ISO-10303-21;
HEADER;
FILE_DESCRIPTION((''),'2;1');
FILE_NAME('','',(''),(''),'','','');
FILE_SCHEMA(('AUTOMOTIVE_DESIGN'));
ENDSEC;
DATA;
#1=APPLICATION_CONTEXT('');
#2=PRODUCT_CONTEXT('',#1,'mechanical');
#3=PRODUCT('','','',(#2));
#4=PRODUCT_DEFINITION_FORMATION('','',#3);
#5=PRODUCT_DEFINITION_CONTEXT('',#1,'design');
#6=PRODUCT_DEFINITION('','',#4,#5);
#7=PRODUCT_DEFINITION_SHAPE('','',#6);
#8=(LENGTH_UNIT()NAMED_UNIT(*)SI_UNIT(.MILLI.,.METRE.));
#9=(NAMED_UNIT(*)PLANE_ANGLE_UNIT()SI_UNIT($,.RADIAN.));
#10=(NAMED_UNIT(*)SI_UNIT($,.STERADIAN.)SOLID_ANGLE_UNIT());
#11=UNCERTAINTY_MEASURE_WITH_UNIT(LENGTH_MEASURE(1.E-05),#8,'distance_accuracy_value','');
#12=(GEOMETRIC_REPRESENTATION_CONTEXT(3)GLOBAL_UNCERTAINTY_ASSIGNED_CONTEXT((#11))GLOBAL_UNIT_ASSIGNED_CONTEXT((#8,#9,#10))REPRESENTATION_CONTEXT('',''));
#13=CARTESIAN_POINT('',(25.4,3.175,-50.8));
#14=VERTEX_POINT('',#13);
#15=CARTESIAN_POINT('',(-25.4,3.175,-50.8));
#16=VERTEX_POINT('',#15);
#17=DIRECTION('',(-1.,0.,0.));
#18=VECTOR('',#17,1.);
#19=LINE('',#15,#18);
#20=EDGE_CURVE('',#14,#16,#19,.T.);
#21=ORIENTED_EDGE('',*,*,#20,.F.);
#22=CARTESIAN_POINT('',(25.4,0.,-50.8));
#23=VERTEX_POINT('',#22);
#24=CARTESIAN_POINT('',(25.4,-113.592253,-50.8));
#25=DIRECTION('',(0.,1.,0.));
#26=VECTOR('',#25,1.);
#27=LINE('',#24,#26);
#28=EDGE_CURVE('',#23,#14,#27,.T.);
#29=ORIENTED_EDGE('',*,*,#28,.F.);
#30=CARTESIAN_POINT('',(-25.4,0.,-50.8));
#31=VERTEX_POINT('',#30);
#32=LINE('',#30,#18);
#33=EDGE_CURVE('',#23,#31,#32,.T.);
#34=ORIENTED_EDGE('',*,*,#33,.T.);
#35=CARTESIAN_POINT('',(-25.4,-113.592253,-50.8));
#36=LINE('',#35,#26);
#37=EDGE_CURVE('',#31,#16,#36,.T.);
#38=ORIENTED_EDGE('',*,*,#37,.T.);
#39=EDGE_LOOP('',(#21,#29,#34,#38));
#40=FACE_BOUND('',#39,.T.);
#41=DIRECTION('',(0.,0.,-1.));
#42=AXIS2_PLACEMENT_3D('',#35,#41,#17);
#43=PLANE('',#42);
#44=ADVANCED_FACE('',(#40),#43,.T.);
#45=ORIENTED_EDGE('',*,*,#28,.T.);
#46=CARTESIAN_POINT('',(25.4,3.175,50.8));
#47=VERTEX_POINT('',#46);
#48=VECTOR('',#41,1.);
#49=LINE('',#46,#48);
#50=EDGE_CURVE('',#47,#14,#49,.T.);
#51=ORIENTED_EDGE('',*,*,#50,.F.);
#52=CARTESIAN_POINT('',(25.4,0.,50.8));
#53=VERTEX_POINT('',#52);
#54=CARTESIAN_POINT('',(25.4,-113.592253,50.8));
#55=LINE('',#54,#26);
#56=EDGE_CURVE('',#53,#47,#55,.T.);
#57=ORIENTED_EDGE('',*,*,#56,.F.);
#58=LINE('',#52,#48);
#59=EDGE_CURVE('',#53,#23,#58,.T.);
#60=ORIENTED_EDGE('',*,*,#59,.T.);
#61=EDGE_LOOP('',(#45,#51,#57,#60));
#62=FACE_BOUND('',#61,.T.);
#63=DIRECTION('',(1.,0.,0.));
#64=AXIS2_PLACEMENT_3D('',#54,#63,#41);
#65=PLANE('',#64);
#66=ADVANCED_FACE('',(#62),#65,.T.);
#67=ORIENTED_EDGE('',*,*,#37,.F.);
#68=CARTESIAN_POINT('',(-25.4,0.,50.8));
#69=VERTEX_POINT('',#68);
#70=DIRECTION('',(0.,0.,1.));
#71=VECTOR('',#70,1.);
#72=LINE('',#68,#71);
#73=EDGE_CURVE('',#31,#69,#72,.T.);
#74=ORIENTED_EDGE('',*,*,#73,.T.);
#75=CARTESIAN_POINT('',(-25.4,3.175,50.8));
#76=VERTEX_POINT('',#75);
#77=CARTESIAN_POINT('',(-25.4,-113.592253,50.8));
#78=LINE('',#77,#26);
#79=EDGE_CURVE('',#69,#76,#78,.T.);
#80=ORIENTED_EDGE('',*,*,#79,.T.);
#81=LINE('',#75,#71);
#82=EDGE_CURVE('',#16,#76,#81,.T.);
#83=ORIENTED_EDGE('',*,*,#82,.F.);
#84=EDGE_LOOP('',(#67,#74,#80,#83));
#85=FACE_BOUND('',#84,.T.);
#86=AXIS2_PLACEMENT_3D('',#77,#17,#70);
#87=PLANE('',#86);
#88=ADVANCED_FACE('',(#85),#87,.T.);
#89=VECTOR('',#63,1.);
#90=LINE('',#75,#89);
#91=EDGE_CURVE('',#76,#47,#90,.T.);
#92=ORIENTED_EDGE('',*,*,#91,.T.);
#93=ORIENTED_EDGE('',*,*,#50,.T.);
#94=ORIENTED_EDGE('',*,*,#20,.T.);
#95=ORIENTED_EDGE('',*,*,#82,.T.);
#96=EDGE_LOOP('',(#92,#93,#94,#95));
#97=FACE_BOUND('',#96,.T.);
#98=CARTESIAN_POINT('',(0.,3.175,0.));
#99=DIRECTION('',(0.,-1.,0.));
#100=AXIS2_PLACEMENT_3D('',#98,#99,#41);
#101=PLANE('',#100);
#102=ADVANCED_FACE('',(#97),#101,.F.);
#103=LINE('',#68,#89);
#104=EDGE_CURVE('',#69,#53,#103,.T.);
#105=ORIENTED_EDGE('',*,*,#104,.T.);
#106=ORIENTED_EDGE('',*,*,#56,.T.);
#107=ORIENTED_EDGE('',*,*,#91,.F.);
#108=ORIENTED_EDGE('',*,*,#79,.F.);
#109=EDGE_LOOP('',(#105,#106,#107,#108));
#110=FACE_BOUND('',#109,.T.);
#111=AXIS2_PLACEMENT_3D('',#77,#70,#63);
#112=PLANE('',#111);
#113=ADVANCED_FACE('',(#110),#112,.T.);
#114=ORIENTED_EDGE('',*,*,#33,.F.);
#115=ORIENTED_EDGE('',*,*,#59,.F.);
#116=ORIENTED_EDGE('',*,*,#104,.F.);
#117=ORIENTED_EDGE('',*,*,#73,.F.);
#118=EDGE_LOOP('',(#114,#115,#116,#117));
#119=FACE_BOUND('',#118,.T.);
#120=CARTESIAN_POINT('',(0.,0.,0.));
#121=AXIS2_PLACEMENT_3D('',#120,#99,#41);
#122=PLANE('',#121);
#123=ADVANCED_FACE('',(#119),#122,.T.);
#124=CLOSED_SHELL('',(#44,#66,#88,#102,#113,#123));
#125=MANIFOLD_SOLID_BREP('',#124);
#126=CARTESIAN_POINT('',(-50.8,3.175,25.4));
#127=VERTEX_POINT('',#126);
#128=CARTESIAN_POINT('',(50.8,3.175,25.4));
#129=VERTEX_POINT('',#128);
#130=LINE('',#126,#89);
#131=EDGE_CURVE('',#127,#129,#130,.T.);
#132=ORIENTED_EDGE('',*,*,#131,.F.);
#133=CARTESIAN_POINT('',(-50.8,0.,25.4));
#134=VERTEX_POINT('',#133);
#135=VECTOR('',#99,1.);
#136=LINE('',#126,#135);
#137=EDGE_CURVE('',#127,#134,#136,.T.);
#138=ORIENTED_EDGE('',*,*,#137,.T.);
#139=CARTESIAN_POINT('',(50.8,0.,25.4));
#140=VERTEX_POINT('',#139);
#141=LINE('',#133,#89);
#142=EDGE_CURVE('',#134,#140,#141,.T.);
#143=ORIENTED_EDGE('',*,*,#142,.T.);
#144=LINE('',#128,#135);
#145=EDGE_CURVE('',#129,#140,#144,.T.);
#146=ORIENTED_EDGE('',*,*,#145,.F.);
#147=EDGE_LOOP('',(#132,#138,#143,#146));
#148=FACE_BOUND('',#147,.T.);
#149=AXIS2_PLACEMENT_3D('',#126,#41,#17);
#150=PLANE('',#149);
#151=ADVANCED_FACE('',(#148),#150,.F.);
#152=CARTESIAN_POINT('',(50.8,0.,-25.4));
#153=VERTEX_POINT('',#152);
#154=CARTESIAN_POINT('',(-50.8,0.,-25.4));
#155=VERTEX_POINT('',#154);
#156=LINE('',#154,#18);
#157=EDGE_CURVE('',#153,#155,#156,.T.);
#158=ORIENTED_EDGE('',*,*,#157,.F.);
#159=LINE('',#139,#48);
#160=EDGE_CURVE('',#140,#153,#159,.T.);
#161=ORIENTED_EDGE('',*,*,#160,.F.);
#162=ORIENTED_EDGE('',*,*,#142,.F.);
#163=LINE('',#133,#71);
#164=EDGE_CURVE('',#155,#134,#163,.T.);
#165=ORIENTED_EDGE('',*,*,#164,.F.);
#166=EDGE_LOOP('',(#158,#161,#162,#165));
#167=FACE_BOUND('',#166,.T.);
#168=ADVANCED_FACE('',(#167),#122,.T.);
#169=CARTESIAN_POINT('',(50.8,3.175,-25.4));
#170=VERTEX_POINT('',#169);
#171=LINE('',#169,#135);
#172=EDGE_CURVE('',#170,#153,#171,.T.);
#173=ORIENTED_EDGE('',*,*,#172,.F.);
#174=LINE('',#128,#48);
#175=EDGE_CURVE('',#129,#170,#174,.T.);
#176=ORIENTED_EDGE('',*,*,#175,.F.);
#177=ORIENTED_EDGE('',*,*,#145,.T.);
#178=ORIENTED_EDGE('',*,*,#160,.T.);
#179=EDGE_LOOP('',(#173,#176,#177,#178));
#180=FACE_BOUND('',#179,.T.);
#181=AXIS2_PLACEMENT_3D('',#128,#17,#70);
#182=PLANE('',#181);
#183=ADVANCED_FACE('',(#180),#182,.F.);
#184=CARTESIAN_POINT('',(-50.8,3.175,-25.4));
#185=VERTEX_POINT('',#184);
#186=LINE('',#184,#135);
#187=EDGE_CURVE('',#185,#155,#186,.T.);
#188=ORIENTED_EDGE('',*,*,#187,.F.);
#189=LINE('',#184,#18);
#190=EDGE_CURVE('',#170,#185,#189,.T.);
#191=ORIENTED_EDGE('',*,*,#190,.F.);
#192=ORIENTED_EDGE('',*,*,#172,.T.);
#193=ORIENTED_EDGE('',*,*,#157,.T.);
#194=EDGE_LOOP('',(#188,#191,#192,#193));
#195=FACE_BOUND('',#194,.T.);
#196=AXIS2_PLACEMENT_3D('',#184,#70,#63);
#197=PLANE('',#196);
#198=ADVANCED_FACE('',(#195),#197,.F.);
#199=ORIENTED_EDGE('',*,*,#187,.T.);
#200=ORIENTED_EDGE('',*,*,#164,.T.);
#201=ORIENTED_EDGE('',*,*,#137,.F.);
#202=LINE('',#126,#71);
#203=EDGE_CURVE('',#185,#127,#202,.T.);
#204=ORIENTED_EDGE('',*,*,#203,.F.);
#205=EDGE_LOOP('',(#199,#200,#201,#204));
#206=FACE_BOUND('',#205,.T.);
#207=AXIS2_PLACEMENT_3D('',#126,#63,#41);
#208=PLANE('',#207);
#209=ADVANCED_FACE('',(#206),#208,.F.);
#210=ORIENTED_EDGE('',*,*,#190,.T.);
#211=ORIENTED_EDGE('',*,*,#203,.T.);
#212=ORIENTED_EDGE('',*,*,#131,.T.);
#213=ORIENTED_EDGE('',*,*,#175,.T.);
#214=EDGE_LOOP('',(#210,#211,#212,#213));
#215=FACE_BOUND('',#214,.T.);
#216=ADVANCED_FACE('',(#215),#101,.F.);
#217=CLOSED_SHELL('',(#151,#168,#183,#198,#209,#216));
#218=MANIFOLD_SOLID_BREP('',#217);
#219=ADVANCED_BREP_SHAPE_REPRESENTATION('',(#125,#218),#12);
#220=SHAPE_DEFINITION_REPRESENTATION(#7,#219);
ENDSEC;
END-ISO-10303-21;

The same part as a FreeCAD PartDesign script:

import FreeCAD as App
import Part
import Sketcher
Q = App.Units.Quantity

doc = App.newDocument("Part")
params = doc.addObject("Spreadsheet::Sheet", "Params")
for row, (alias, value) in enumerate([
    ("sketch1_width", "4 in"),
    ("sketch1_height", "2 in"),
    ("pad1_length", "0.125 in"),
    ("sketch2_width", "2 in"),
    ("sketch2_height", "4 in"),
    ("pad2_length", "0.125 in"),
], start=1):
    params.set(f"A{row}", alias)
    params.set(f"B{row}", "=" + value)
    params.setAlias(f"B{row}", alias)

body = doc.addObject("PartDesign::Body", "Body")

sketch1 = body.newObject("Sketcher::SketchObject", "Sketch")
sketch1.AttachmentSupport = (doc.getObject("XZ_Plane"), [""])
sketch1.MapMode = "FlatFace"
sketch1.addGeometry(Part.LineSegment(App.Vector(-50.8, -25.4, 0), App.Vector(-50.8, 25.4, 0)), False)
sketch1.addGeometry(Part.LineSegment(App.Vector(-50.8, 25.4, 0), App.Vector(50.8, 25.4, 0)), False)
sketch1.addGeometry(Part.LineSegment(App.Vector(50.8, 25.4, 0), App.Vector(50.8, -25.4, 0)), False)
sketch1.addGeometry(Part.LineSegment(App.Vector(50.8, -25.4, 0), App.Vector(-50.8, -25.4, 0)), False)
sketch1.addConstraint(Sketcher.Constraint("Coincident", 0, 2, 1, 1))
sketch1.addConstraint(Sketcher.Constraint("Coincident", 1, 2, 2, 1))
sketch1.addConstraint(Sketcher.Constraint("Coincident", 2, 2, 3, 1))
sketch1.addConstraint(Sketcher.Constraint("Coincident", 3, 2, 0, 1))
sketch1.addConstraint(Sketcher.Constraint("Vertical", 0))
sketch1.addConstraint(Sketcher.Constraint("Horizontal", 1))
sketch1.addConstraint(Sketcher.Constraint("Vertical", 2))
sketch1.addConstraint(Sketcher.Constraint("Horizontal", 3))
sketch1.addConstraint(Sketcher.Constraint("Symmetric", 0, 2, 2, 2, -1, 1))
sketch1.addConstraint(Sketcher.Constraint("DistanceX", 1, 1, 1, 2, Q("4 in")))
sketch1.addConstraint(Sketcher.Constraint("DistanceY", 0, 1, 0, 2, Q("2 in")))
sketch1.setExpression("Constraints[9]", "Params.sketch1_width")
sketch1.setExpression("Constraints[10]", "Params.sketch1_height")
pad1 = body.newObject("PartDesign::Pad", "Pad")
pad1.Profile = sketch1
pad1.setExpression("Length", "Params.pad1_length")
pad1.Reversed = True
body2 = doc.addObject("PartDesign::Body", "Body001")

sketch2 = body2.newObject("Sketcher::SketchObject", "Sketch001")
sketch2.AttachmentSupport = (doc.getObject("XZ_Plane001"), [""])
sketch2.MapMode = "FlatFace"
sketch2.AttachmentOffset = App.Placement(App.Vector(0, 0, -0.125 * 25.4), App.Rotation())
sketch2.addGeometry(Part.LineSegment(App.Vector(-25.4, -50.8, 0), App.Vector(-25.4, 50.8, 0)), False)
sketch2.addGeometry(Part.LineSegment(App.Vector(-25.4, 50.8, 0), App.Vector(25.4, 50.8, 0)), False)
sketch2.addGeometry(Part.LineSegment(App.Vector(25.4, 50.8, 0), App.Vector(25.4, -50.8, 0)), False)
sketch2.addGeometry(Part.LineSegment(App.Vector(25.4, -50.8, 0), App.Vector(-25.4, -50.8, 0)), False)
sketch2.addConstraint(Sketcher.Constraint("Coincident", 0, 2, 1, 1))
sketch2.addConstraint(Sketcher.Constraint("Coincident", 1, 2, 2, 1))
sketch2.addConstraint(Sketcher.Constraint("Coincident", 2, 2, 3, 1))
sketch2.addConstraint(Sketcher.Constraint("Coincident", 3, 2, 0, 1))
sketch2.addConstraint(Sketcher.Constraint("Vertical", 0))
sketch2.addConstraint(Sketcher.Constraint("Horizontal", 1))
sketch2.addConstraint(Sketcher.Constraint("Vertical", 2))
sketch2.addConstraint(Sketcher.Constraint("Horizontal", 3))
sketch2.addConstraint(Sketcher.Constraint("Symmetric", 0, 2, 2, 2, -1, 1))
sketch2.addConstraint(Sketcher.Constraint("DistanceX", 1, 1, 1, 2, Q("2 in")))
sketch2.addConstraint(Sketcher.Constraint("DistanceY", 0, 1, 0, 2, Q("4 in")))
sketch2.setExpression("Constraints[9]", "Params.sketch2_width")
sketch2.setExpression("Constraints[10]", "Params.sketch2_height")
pad2 = body2.newObject("PartDesign::Pad", "Pad001")
pad2.Profile = sketch2
pad2.setExpression("Length", "Params.pad2_length")

doc.recompute()
